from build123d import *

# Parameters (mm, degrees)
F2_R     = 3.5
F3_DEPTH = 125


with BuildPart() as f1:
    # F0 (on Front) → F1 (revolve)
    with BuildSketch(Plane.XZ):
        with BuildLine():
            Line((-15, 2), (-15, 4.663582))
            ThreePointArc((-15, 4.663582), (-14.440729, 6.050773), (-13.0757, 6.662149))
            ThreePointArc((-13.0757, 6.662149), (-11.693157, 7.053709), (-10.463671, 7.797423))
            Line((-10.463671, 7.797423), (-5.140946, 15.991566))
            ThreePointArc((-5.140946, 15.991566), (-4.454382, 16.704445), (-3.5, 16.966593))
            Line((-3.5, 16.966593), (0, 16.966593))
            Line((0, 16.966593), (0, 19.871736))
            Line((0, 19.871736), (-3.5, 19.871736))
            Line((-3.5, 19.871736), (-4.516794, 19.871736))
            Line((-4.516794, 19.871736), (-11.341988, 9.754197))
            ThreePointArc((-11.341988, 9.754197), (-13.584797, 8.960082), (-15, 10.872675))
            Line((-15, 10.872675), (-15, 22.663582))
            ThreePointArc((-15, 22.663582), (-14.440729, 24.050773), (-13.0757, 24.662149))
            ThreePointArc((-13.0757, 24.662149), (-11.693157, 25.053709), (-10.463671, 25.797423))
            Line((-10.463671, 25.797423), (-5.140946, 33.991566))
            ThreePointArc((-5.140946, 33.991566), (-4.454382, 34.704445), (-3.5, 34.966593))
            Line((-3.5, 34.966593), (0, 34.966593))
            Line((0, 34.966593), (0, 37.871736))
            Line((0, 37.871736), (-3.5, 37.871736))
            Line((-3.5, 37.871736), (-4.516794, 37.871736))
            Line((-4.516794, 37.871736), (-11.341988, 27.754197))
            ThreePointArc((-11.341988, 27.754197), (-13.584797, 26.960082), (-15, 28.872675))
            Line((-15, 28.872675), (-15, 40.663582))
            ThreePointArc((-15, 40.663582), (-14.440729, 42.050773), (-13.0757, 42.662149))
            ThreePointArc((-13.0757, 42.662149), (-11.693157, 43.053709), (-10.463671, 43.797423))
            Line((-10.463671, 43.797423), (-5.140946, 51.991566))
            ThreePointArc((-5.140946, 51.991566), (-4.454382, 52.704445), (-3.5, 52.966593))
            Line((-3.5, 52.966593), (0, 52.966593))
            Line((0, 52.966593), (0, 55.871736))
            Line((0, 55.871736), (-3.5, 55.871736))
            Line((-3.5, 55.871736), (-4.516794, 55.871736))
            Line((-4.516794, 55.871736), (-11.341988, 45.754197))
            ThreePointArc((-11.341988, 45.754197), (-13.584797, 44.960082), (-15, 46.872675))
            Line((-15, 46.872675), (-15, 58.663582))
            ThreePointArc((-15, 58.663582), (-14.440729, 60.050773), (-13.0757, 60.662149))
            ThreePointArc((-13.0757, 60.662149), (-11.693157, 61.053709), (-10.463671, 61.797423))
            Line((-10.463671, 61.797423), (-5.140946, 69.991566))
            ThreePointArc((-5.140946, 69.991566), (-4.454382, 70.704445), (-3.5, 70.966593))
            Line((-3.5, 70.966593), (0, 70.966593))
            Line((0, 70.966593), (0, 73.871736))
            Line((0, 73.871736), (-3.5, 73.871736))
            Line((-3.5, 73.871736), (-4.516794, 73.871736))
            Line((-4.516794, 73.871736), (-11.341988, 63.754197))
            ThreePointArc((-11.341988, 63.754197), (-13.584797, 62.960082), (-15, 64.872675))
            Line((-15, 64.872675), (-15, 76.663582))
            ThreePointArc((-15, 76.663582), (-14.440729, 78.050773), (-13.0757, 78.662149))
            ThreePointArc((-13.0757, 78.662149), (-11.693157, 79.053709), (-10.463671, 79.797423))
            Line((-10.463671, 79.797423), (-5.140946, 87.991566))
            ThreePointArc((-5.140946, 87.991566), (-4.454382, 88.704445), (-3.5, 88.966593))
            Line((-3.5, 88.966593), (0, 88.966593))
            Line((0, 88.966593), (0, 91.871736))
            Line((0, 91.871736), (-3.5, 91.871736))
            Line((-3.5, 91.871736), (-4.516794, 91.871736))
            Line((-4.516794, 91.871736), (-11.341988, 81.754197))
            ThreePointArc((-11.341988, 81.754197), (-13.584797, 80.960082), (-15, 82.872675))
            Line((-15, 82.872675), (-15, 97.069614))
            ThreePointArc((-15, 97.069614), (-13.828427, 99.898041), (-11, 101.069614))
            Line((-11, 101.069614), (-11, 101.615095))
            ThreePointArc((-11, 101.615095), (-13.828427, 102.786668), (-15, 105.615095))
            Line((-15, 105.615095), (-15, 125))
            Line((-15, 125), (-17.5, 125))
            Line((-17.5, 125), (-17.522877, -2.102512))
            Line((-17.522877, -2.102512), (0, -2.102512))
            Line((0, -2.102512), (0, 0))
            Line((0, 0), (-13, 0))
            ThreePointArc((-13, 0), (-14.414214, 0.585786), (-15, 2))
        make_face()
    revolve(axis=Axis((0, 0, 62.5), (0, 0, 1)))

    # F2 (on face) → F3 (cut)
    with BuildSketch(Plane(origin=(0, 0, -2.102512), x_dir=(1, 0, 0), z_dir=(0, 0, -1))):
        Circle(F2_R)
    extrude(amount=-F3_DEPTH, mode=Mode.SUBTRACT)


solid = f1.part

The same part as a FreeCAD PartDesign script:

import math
import FreeCAD as App
import Part
import Sketcher
Q = App.Units.Quantity

doc = App.newDocument("Part")
body = doc.addObject("PartDesign::Body", "Body")

# Sketch on XZ plane
sketch1 = body.newObject("Sketcher::SketchObject", "Sketch")
sketch1.AttachmentSupport = (doc.getObject("XZ_Plane"), [""])
sketch1.MapMode = "FlatFace"
sketch1.addGeometry(Part.LineSegment(App.Vector(-15, 2, 0), App.Vector(-15, 4.7, 0)), False)
sketch1.addGeometry(Part.ArcOfCircle(Part.Circle(App.Vector(-13, 4.7, 0), App.Vector(0, 0, 1), 2), math.radians(92), math.radians(180)), False)
sketch1.addGeometry(Part.ArcOfCircle(Part.Circle(App.Vector(-13.8, 12, 0), App.Vector(0, 0, 1), 5.4), math.radians(-82), math.radians(-51)), False)
sketch1.addGeometry(Part.LineSegment(App.Vector(-10.5, 7.8, 0), App.Vector(-5.1, 16, 0)), False)
sketch1.addGeometry(Part.ArcOfCircle(Part.Circle(App.Vector(-3.5, 15.1, 0), App.Vector(0, 0, 1), 1.9), math.radians(90), math.radians(151)), False)
sketch1.addGeometry(Part.LineSegment(App.Vector(-3.5, 17, 0), App.Vector(0, 17, 0)), False)
sketch1.addGeometry(Part.LineSegment(App.Vector(0, 17, 0), App.Vector(0, 19.9, 0)), False)
sketch1.addGeometry(Part.LineSegment(App.Vector(0, 19.9, 0), App.Vector(-4.5, 19.9, 0)), False)
sketch1.addGeometry(Part.LineSegment(App.Vector(-4.5, 19.9, 0), App.Vector(-11.3, 9.8, 0)), False)
sketch1.addGeometry(Part.ArcOfCircle(Part.Circle(App.Vector(-13, 10.9, 0), App.Vector(0, 0, 1), 2), math.radians(180), math.radians(326)), False)
sketch1.addGeometry(Part.LineSegment(App.Vector(-15, 10.9, 0), App.Vector(-15, 22.7, 0)), False)
sketch1.addGeometry(Part.ArcOfCircle(Part.Circle(App.Vector(-13, 22.7, 0), App.Vector(0, 0, 1), 2), math.radians(92), math.radians(180)), False)
sketch1.addGeometry(Part.ArcOfCircle(Part.Circle(App.Vector(-13.8, 30, 0), App.Vector(0, 0, 1), 5.4), math.radians(-82), math.radians(-51)), False)
sketch1.addGeometry(Part.LineSegment(App.Vector(-10.5, 25.8, 0), App.Vector(-5.1, 34, 0)), False)
sketch1.addGeometry(Part.ArcOfCircle(Part.Circle(App.Vector(-3.5, 33.1, 0), App.Vector(0, 0, 1), 1.9), math.radians(90), math.radians(151)), False)
sketch1.addGeometry(Part.LineSegment(App.Vector(-3.5, 35, 0), App.Vector(0, 35, 0)), False)
sketch1.addGeometry(Part.LineSegment(App.Vector(0, 35, 0), App.Vector(0, 37.9, 0)), False)
sketch1.addGeometry(Part.LineSegment(App.Vector(0, 37.9, 0), App.Vector(-4.5, 37.9, 0)), False)
sketch1.addGeometry(Part.LineSegment(App.Vector(-4.5, 37.9, 0), App.Vector(-11.3, 27.8, 0)), False)
sketch1.addGeometry(Part.ArcOfCircle(Part.Circle(App.Vector(-13, 28.9, 0), App.Vector(0, 0, 1), 2), math.radians(180), math.radians(326)), False)
sketch1.addGeometry(Part.LineSegment(App.Vector(-15, 28.9, 0), App.Vector(-15, 40.7, 0)), False)
sketch1.addGeometry(Part.ArcOfCircle(Part.Circle(App.Vector(-13, 40.7, 0), App.Vector(0, 0, 1), 2), math.radians(92), math.radians(180)), False)
sketch1.addGeometry(Part.ArcOfCircle(Part.Circle(App.Vector(-13.8, 48, 0), App.Vector(0, 0, 1), 5.4), math.radians(-82), math.radians(-51)), False)
sketch1.addGeometry(Part.LineSegment(App.Vector(-10.5, 43.8, 0), App.Vector(-5.1, 52, 0)), False)
sketch1.addGeometry(Part.ArcOfCircle(Part.Circle(App.Vector(-3.5, 51.1, 0), App.Vector(0, 0, 1), 1.9), math.radians(90), math.radians(151)), False)
sketch1.addGeometry(Part.LineSegment(App.Vector(-3.5, 53, 0), App.Vector(0, 53, 0)), False)
sketch1.addGeometry(Part.LineSegment(App.Vector(0, 53, 0), App.Vector(0, 55.9, 0)), False)
sketch1.addGeometry(Part.LineSegment(App.Vector(0, 55.9, 0), App.Vector(-4.5, 55.9, 0)), False)
sketch1.addGeometry(Part.LineSegment(App.Vector(-4.5, 55.9, 0), App.Vector(-11.3, 45.8, 0)), False)
sketch1.addGeometry(Part.ArcOfCircle(Part.Circle(App.Vector(-13, 46.9, 0), App.Vector(0, 0, 1), 2), math.radians(180), math.radians(326)), False)
sketch1.addGeometry(Part.LineSegment(App.Vector(-15, 46.9, 0), App.Vector(-15, 58.7, 0)), False)
sketch1.addGeometry(Part.ArcOfCircle(Part.Circle(App.Vector(-13, 58.7, 0), App.Vector(0, 0, 1), 2), math.radians(92), math.radians(180)), False)
sketch1.addGeometry(Part.ArcOfCircle(Part.Circle(App.Vector(-13.8, 66, 0), App.Vector(0, 0, 1), 5.4), math.radians(-82), math.radians(-51)), False)
sketch1.addGeometry(Part.LineSegment(App.Vector(-10.5, 61.8, 0), App.Vector(-5.1, 70, 0)), False)
sketch1.addGeometry(Part.ArcOfCircle(Part.Circle(App.Vector(-3.5, 69.1, 0), App.Vector(0, 0, 1), 1.9), math.radians(90), math.radians(151)), False)
sketch1.addGeometry(Part.LineSegment(App.Vector(-3.5, 71, 0), App.Vector(0, 71, 0)), False)
sketch1.addGeometry(Part.LineSegment(App.Vector(0, 71, 0), App.Vector(0, 73.9, 0)), False)
sketch1.addGeometry(Part.LineSegment(App.Vector(0, 73.9, 0), App.Vector(-4.5, 73.9, 0)), False)
sketch1.addGeometry(Part.LineSegment(App.Vector(-4.5, 73.9, 0), App.Vector(-11.3, 63.8, 0)), False)
sketch1.addGeometry(Part.ArcOfCircle(Part.Circle(App.Vector(-13, 64.9, 0), App.Vector(0, 0, 1), 2), math.radians(180), math.radians(326)), False)
sketch1.addGeometry(Part.LineSegment(App.Vector(-15, 64.9, 0), App.Vector(-15, 76.7, 0)), False)
sketch1.addGeometry(Part.ArcOfCircle(Part.Circle(App.Vector(-13, 76.7, 0), App.Vector(0, 0, 1), 2), math.radians(92), math.radians(180)), False)
sketch1.addGeometry(Part.ArcOfCircle(Part.Circle(App.Vector(-13.8, 84, 0), App.Vector(0, 0, 1), 5.4), math.radians(-82), math.radians(-51)), False)
sketch1.addGeometry(Part.LineSegment(App.Vector(-10.5, 79.8, 0), App.Vector(-5.1, 88, 0)), False)
sketch1.addGeometry(Part.ArcOfCircle(Part.Circle(App.Vector(-3.5, 87.1, 0), App.Vector(0, 0, 1), 1.9), math.radians(90), math.radians(151)), False)
sketch1.addGeometry(Part.LineSegment(App.Vector(-3.5, 89, 0), App.Vector(0, 89, 0)), False)
sketch1.addGeometry(Part.LineSegment(App.Vector(0, 89, 0), App.Vector(0, 91.9, 0)), False)
sketch1.addGeometry(Part.LineSegment(App.Vector(0, 91.9, 0), App.Vector(-4.5, 91.9, 0)), False)
sketch1.addGeometry(Part.LineSegment(App.Vector(-4.5, 91.9, 0), App.Vector(-11.3, 81.8, 0)), False)
sketch1.addGeometry(Part.ArcOfCircle(Part.Circle(App.Vector(-13, 82.9, 0), App.Vector(0, 0, 1), 2), math.radians(180), math.radians(326)), False)
sketch1.addGeometry(Part.LineSegment(App.Vector(-15, 82.9, 0), App.Vector(-15, 97.1, 0)), False)
sketch1.addGeometry(Part.ArcOfCircle(Part.Circle(App.Vector(-11, 97.1, 0), App.Vector(0, 0, 1), 4), math.radians(90), math.radians(180)), False)
sketch1.addGeometry(Part.LineSegment(App.Vector(-11, 101.1, 0), App.Vector(-11, 101.6, 0)), False)
sketch1.addGeometry(Part.ArcOfCircle(Part.Circle(App.Vector(-11, 105.6, 0), App.Vector(0, 0, 1), 4), math.radians(-180), math.radians(-90)), False)
sketch1.addGeometry(Part.LineSegment(App.Vector(-15, 105.6, 0), App.Vector(-15, 125, 0)), False)
sketch1.addGeometry(Part.LineSegment(App.Vector(-15, 125, 0), App.Vector(-17.5, 125, 0)), False)
sketch1.addGeometry(Part.LineSegment(App.Vector(-17.5, 125, 0), App.Vector(-17.5, -2.1, 0)), False)
sketch1.addGeometry(Part.LineSegment(App.Vector(-17.5, -2.1, 0), App.Vector(0, -2.1, 0)), False)
sketch1.addGeometry(Part.LineSegment(App.Vector(0, -2.1, 0), App.Vector(0, 0, 0)), False)
sketch1.addGeometry(Part.LineSegment(App.Vector(0, 0, 0), App.Vector(-13, 0, 0)), False)
sketch1.addGeometry(Part.ArcOfCircle(Part.Circle(App.Vector(-13, 2, 0), App.Vector(0, 0, 1), 2), math.radians(180), math.radians(270)), False)
sketch1.addConstraint(Sketcher.Constraint("Tangent", 0, 2, 1, 2))
sketch1.addConstraint(Sketcher.Constraint("Coincident", 1, 1, 2, 1))
sketch1.addConstraint(Sketcher.Constraint("Coincident", 2, 2, 3, 1))
sketch1.addConstraint(Sketcher.Constraint("Coincident", 3, 2, 4, 2))
sketch1.addConstraint(Sketcher.Constraint("Tangent", 4, 1, 5, 1))
sketch1.addConstraint(Sketcher.Constraint("Coincident", 5, 2, 6, 1))
sketch1.addConstraint(Sketcher.Constraint("Coincident", 6, 2, 7, 1))
sketch1.addConstraint(Sketcher.Constraint("Coincident", 7, 2, 8, 1))
sketch1.addConstraint(Sketcher.Constraint("Tangent", 8, 2, 9, 2))
sketch1.addConstraint(Sketcher.Constraint("Tangent", 9, 1, 10, 1))
sketch1.addConstraint(Sketcher.Constraint("Tangent", 10, 2, 11, 2))
sketch1.addConstraint(Sketcher.Constraint("Coincident", 11, 1, 12, 1))
sketch1.addConstraint(Sketcher.Constraint("Coincident", 12, 2, 13, 1))
sketch1.addConstraint(Sketcher.Constraint("Coincident", 13, 2, 14, 2))
sketch1.addConstraint(Sketcher.Constraint("Tangent", 14, 1, 15, 1))
sketch1.addConstraint(Sketcher.Constraint("Coincident", 15, 2, 16, 1))
sketch1.addConstraint(Sketcher.Constraint("Coincident", 16, 2, 17, 1))
sketch1.addConstraint(Sketcher.Constraint("Coincident", 17, 2, 18, 1))
sketch1.addConstraint(Sketcher.Constraint("Tangent", 18, 2, 19, 2))
sketch1.addConstraint(Sketcher.Constraint("Tangent", 19, 1, 20, 1))
sketch1.addConstraint(Sketcher.Constraint("Tangent", 20, 2, 21, 2))
sketch1.addConstraint(Sketcher.Constraint("Coincident", 21, 1, 22, 1))
sketch1.addConstraint(Sketcher.Constraint("Coincident", 22, 2, 23, 1))
sketch1.addConstraint(Sketcher.Constraint("Coincident", 23, 2, 24, 2))
sketch1.addConstraint(Sketcher.Constraint("Tangent", 24, 1, 25, 1))
sketch1.addConstraint(Sketcher.Constraint("Coincident", 25, 2, 26, 1))
sketch1.addConstraint(Sketcher.Constraint("Coincident", 26, 2, 27, 1))
sketch1.addConstraint(Sketcher.Constraint("Coincident", 27, 2, 28, 1))
sketch1.addConstraint(Sketcher.Constraint("Tangent", 28, 2, 29, 2))
sketch1.addConstraint(Sketcher.Constraint("Tangent", 29, 1, 30, 1))
sketch1.addConstraint(Sketcher.Constraint("Tangent", 30, 2, 31, 2))
sketch1.addConstraint(Sketcher.Constraint("Coincident", 31, 1, 32, 1))
sketch1.addConstraint(Sketcher.Constraint("Coincident", 32, 2, 33, 1))
sketch1.addConstraint(Sketcher.Constraint("Coincident", 33, 2, 34, 2))
sketch1.addConstraint(Sketcher.Constraint("Tangent", 34, 1, 35, 1))
sketch1.addConstraint(Sketcher.Constraint("Coincident", 35, 2, 36, 1))
sketch1.addConstraint(Sketcher.Constraint("Coincident", 36, 2, 37, 1))
sketch1.addConstraint(Sketcher.Constraint("Coincident", 37, 2, 38, 1))
sketch1.addConstraint(Sketcher.Constraint("Tangent", 38, 2, 39, 2))
sketch1.addConstraint(Sketcher.Constraint("Tangent", 39, 1, 40, 1))
sketch1.addConstraint(Sketcher.Constraint("Tangent", 40, 2, 41, 2))
sketch1.addConstraint(Sketcher.Constraint("Coincident", 41, 1, 42, 1))
sketch1.addConstraint(Sketcher.Constraint("Coincident", 42, 2, 43, 1))
sketch1.addConstraint(Sketcher.Constraint("Coincident", 43, 2, 44, 2))
sketch1.addConstraint(Sketcher.Constraint("Tangent", 44, 1, 45, 1))
sketch1.addConstraint(Sketcher.Constraint("Coincident", 45, 2, 46, 1))
sketch1.addConstraint(Sketcher.Constraint("Coincident", 46, 2, 47, 1))
sketch1.addConstraint(Sketcher.Constraint("Coincident", 47, 2, 48, 1))
sketch1.addConstraint(Sketcher.Constraint("Tangent", 48, 2, 49, 2))
sketch1.addConstraint(Sketcher.Constraint("Tangent", 49, 1, 50, 1))
sketch1.addConstraint(Sketcher.Constraint("Tangent", 50, 2, 51, 2))
sketch1.addConstraint(Sketcher.Constraint("Coincident", 51, 1, 52, 1))
sketch1.addConstraint(Sketcher.Constraint("Coincident", 52, 2, 53, 2))
sketch1.addConstraint(Sketcher.Constraint("Tangent", 53, 1, 54, 1))
sketch1.addConstraint(Sketcher.Constraint("Coincident", 54, 2, 55, 1))
sketch1.addConstraint(Sketcher.Constraint("Coincident", 55, 2, 56, 1))
sketch1.addConstraint(Sketcher.Constraint("Coincident", 56, 2, 57, 1))
sketch1.addConstraint(Sketcher.Constraint("Coincident", 57, 2, 58, 1))
sketch1.addConstraint(Sketcher.Constraint("Coincident", 58, 2, 59, 1))
sketch1.addConstraint(Sketcher.Constraint("Tangent", 59, 2, 60, 2))
sketch1.addConstraint(Sketcher.Constraint("Tangent", 60, 1, 0, 1))
sketch1.addConstraint(Sketcher.Constraint("Vertical", 0))
sketch1.addConstraint(Sketcher.Constraint("Horizontal", 5))
sketch1.addConstraint(Sketcher.Constraint("Vertical", 6))
sketch1.addConstraint(Sketcher.Constraint("Horizontal", 7))
sketch1.addConstraint(Sketcher.Constraint("Vertical", 10))
sketch1.addConstraint(Sketcher.Constraint("Horizontal", 15))
sketch1.addConstraint(Sketcher.Constraint("Vertical", 16))
sketch1.addConstraint(Sketcher.Constraint("Horizontal", 17))
sketch1.addConstraint(Sketcher.Constraint("Vertical", 20))
sketch1.addConstraint(Sketcher.Constraint("Horizontal", 25))
sketch1.addConstraint(Sketcher.Constraint("Vertical", 26))
sketch1.addConstraint(Sketcher.Constraint("Horizontal", 27))
sketch1.addConstraint(Sketcher.Constraint("Vertical", 30))
sketch1.addConstraint(Sketcher.Constraint("Horizontal", 35))
sketch1.addConstraint(Sketcher.Constraint("Vertical", 36))
sketch1.addConstraint(Sketcher.Constraint("Horizontal", 37))
sketch1.addConstraint(Sketcher.Constraint("Vertical", 40))
sketch1.addConstraint(Sketcher.Constraint("Horizontal", 45))
sketch1.addConstraint(Sketcher.Constraint("Vertical", 46))
sketch1.addConstraint(Sketcher.Constraint("Horizontal", 47))
sketch1.addConstraint(Sketcher.Constraint("Vertical", 50))
sketch1.addConstraint(Sketcher.Constraint("Vertical", 52))
sketch1.addConstraint(Sketcher.Constraint("Vertical", 54))
sketch1.addConstraint(Sketcher.Constraint("Horizontal", 55))
sketch1.addConstraint(Sketcher.Constraint("Horizontal", 57))
sketch1.addConstraint(Sketcher.Constraint("Vertical", 58))
sketch1.addConstraint(Sketcher.Constraint("Horizontal", 59))
sketch1.addConstraint(Sketcher.Constraint("Coincident", 58, 2, -1, 1))
sketch1.addConstraint(Sketcher.Constraint("Equal", 1, 9))
sketch1.addConstraint(Sketcher.Constraint("Equal", 9, 11))
sketch1.addConstraint(Sketcher.Constraint("Equal", 2, 12))
sketch1.addConstraint(Sketcher.Constraint("Equal", 4, 14))
sketch1.addConstraint(Sketcher.Constraint("Equal", 11, 19))
sketch1.addConstraint(Sketcher.Constraint("Equal", 19, 21))
sketch1.addConstraint(Sketcher.Constraint("Equal", 12, 22))
sketch1.addConstraint(Sketcher.Constraint("Equal", 14, 24))
sketch1.addConstraint(Sketcher.Constraint("Equal", 21, 29))
sketch1.addConstraint(Sketcher.Constraint("Equal", 29, 31))
sketch1.addConstraint(Sketcher.Constraint("Equal", 22, 32))
sketch1.addConstraint(Sketcher.Constraint("Equal", 24, 34))
sketch1.addConstraint(Sketcher.Constraint("Equal", 31, 39))
sketch1.addConstraint(Sketcher.Constraint("Equal", 39, 41))
sketch1.addConstraint(Sketcher.Constraint("Equal", 32, 42))
sketch1.addConstraint(Sketcher.Constraint("Equal", 34, 44))
sketch1.addConstraint(Sketcher.Constraint("Equal", 41, 49))
sketch1.addConstraint(Sketcher.Constraint("Equal", 51, 53))
sketch1.addConstraint(Sketcher.Constraint("Equal", 49, 60))
sketch1.addConstraint(Sketcher.Constraint("PointOnObject", 5, 2, -2))
sketch1.addConstraint(Sketcher.Constraint("PointOnObject", 15, 2, -2))
sketch1.addConstraint(Sketcher.Constraint("PointOnObject", 25, 2, -2))
sketch1.addConstraint(Sketcher.Constraint("PointOnObject", 35, 2, -2))
sketch1.addConstraint(Sketcher.Constraint("PointOnObject", 45, 2, -2))
sketch1.addConstraint(Sketcher.Constraint("Parallel", 3, 13))
sketch1.addConstraint(Sketcher.Constraint("Parallel", 8, 18))
sketch1.addConstraint(Sketcher.Constraint("Parallel", 13, 23))
sketch1.addConstraint(Sketcher.Constraint("Parallel", 18, 28))
sketch1.addConstraint(Sketcher.Constraint("Parallel", 23, 33))
sketch1.addConstraint(Sketcher.Constraint("Parallel", 28, 38))
sketch1.addConstraint(Sketcher.Constraint("Parallel", 33, 43))
sketch1.addConstraint(Sketcher.Constraint("Parallel", 38, 48))
sketch1.addConstraint(Sketcher.Constraint("Vertical", 1, 3, 9, 3))
sketch1.addConstraint(Sketcher.Constraint("Vertical", 2, 3, 12, 3))
sketch1.addConstraint(Sketcher.Constraint("Vertical", 4, 3, 14, 3))
sketch1.addConstraint(Sketcher.Constraint("Vertical", 11, 3, 19, 3))
sketch1.addConstraint(Sketcher.Constraint("Vertical", 12, 3, 22, 3))
sketch1.addConstraint(Sketcher.Constraint("Vertical", 14, 3, 24, 3))
sketch1.addConstraint(Sketcher.Constraint("Vertical", 21, 3, 29, 3))
sketch1.addConstraint(Sketcher.Constraint("Vertical", 22, 3, 32, 3))
sketch1.addConstraint(Sketcher.Constraint("Vertical", 24, 3, 34, 3))
sketch1.addConstraint(Sketcher.Constraint("Vertical", 31, 3, 39, 3))
sketch1.addConstraint(Sketcher.Constraint("Vertical", 32, 3, 42, 3))
sketch1.addConstraint(Sketcher.Constraint("Vertical", 34, 3, 44, 3))
sketch1.addConstraint(Sketcher.Constraint("Vertical", 41, 3, 49, 3))
sketch1.addConstraint(Sketcher.Constraint("Vertical", 51, 3, 53, 3))
sketch1.addConstraint(Sketcher.Constraint("Vertical", 1, 1, 11, 1))
sketch1.addConstraint(Sketcher.Constraint("Vertical", 2, 2, 12, 2))
sketch1.addConstraint(Sketcher.Constraint("Vertical", 3, 2, 13, 2))
sketch1.addConstraint(Sketcher.Constraint("Vertical", 7, 2, 17, 2))
sketch1.addConstraint(Sketcher.Constraint("Vertical", 11, 1, 21, 1))
sketch1.addConstraint(Sketcher.Constraint("Vertical", 12, 2, 22, 2))
sketch1.addConstraint(Sketcher.Constraint("Vertical", 13, 2, 23, 2))
sketch1.addConstraint(Sketcher.Constraint("Vertical", 17, 2, 27, 2))
sketch1.addConstraint(Sketcher.Constraint("Vertical", 21, 1, 31, 1))
sketch1.addConstraint(Sketcher.Constraint("Vertical", 22, 2, 32, 2))
sketch1.addConstraint(Sketcher.Constraint("Vertical", 23, 2, 33, 2))
sketch1.addConstraint(Sketcher.Constraint("Vertical", 27, 2, 37, 2))
sketch1.addConstraint(Sketcher.Constraint("Vertical", 31, 1, 41, 1))
sketch1.addConstraint(Sketcher.Constraint("Vertical", 32, 2, 42, 2))
sketch1.addConstraint(Sketcher.Constraint("Vertical", 33, 2, 43, 2))
sketch1.addConstraint(Sketcher.Constraint("Vertical", 37, 2, 47, 2))
sketch1.addConstraint(Sketcher.Constraint("Vertical", 53, 3, 51, 1))
sketch1.addConstraint(Sketcher.Constraint("Equal", 6, 16))
sketch1.addConstraint(Sketcher.Constraint("Equal", 10, 20))
sketch1.addConstraint(Sketcher.Constraint("Equal", 16, 26))
sketch1.addConstraint(Sketcher.Constraint("Equal", 20, 30))
sketch1.addConstraint(Sketcher.Constraint("Equal", 26, 36))
sketch1.addConstraint(Sketcher.Constraint("Equal", 30, 40))
sketch1.addConstraint(Sketcher.Constraint("Equal", 36, 46))
sketch1.addConstraint(Sketcher.Constraint("Radius", 1, Q("2.000001 mm")))
sketch1.addConstraint(Sketcher.Constraint("Radius", 51, Q("4 mm")))
sketch1.addConstraint(Sketcher.Constraint("DistanceX", 59, 2, 59, 1, Q("13 mm")))
sketch1.addConstraint(Sketcher.Constraint("DistanceX", 5, 1, 5, 2, Q("3.5 mm")))
sketch1.addConstraint(Sketcher.Constraint("DistanceX", 55, 2, 55, 1, Q("2.5 mm")))
sketch1.addConstraint(Sketcher.Constraint("DistanceY", -1, 1, 54, 2, Q("125 mm")))
sketch1.addConstraint(Sketcher.Constraint("Radius", 4, Q("1.868351 mm")))
sketch1.addConstraint(Sketcher.Constraint("Radius", 2, Q("5.377253 mm")))
sketch1.addConstraint(Sketcher.Constraint("DistanceY", 0, 1, 0, 2, Q("2.663582 mm")))
sketch1.addConstraint(Sketcher.Constraint("DistanceY", 50, 1, 50, 2, Q("14.196939 mm")))
sketch1.addConstraint(Sketcher.Constraint("DistanceY", 52, 1, 52, 2, Q("0.545481 mm")))
sketch1.addConstraint(Sketcher.Constraint("DistanceY", 58, 1, 58, 2, Q("2.102512 mm")))
sketch1.addConstraint(Sketcher.Constraint("DistanceX", 1, 1, -1, 1, Q("13.0757 mm")))
sketch1.addConstraint(Sketcher.Constraint("Distance", 3, Q("9.77115 mm")))
sketch1.addConstraint(Sketcher.Constraint("Distance", 8, Q("12.20442 mm")))
sketch1.addConstraint(Sketcher.Constraint("DistanceX", 7, 2, 7, 1, Q("4.516794 mm")))
sketch1.addConstraint(Sketcher.Constraint("DistanceX", 57, 1, 57, 2, Q("17.522877 mm")))
sketch1.addConstraint(Sketcher.Constraint("DistanceY", 6, 1, 6, 2, Q("2.905143 mm")))
sketch1.addConstraint(Sketcher.Constraint("DistanceY", 10, 1, 10, 2, Q("11.790907 mm")))
sketch1.addConstraint(Sketcher.Constraint("DistanceY", 54, 1, 54, 2, Q("19.384905 mm")))
sketch1.addConstraint(Sketcher.Constraint("DistanceX", 2, 2, -1, 1, Q("10.463671 mm")))
sketch1.addConstraint(Sketcher.Constraint("DistanceX", 2, 3, -1, 1, Q("13.836587 mm")))
revolution = body.newObject("PartDesign::Revolution", "Revolution")
revolution.Profile = sketch1
revolution.ReferenceAxis = (sketch1, ["V_Axis"])
revolution.Angle = 360

# Sketch on XY plane
sketch2 = body.newObject("Sketcher::SketchObject", "Sketch001")
sketch2.AttachmentSupport = (doc.getObject("XY_Plane"), [""])
sketch2.MapMode = "FlatFace"
sketch2.AttachmentOffset = App.Placement(App.Vector(0, 0, -2.102512), App.Rotation())
sketch2.addGeometry(Part.Circle(App.Vector(0, 0, 0), App.Vector(0, 0, 1), 3.5), False)
sketch2.addConstraint(Sketcher.Constraint("Coincident", 0, 3, -1, 1))
sketch2.addConstraint(Sketcher.Constraint("Diameter", 0, Q("7 mm")))
pocket1 = body.newObject("PartDesign::Pocket", "Pocket")
pocket1.Profile = sketch2
pocket1.Length = 125
pocket1.Reversed = True

doc.recompute()
